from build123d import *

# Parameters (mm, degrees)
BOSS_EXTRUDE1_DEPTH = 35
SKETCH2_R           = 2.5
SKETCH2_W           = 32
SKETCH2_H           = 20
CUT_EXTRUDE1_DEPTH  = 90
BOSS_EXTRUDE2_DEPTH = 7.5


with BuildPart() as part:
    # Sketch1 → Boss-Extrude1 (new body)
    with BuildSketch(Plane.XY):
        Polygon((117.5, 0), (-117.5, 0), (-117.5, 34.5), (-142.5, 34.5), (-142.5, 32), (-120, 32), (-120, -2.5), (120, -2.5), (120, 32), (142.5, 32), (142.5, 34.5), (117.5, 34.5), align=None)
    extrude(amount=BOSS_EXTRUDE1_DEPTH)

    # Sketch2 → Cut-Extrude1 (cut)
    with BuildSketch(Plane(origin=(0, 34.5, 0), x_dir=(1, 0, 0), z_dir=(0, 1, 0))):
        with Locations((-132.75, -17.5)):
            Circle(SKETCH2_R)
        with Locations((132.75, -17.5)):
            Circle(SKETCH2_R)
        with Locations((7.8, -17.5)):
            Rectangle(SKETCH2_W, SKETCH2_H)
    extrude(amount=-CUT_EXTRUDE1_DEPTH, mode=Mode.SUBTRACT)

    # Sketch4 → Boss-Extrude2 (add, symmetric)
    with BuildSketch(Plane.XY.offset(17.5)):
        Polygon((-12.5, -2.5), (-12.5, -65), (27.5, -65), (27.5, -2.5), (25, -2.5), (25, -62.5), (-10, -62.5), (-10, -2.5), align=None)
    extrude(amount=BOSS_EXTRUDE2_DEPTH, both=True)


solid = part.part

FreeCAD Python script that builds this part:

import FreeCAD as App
import Part
import Sketcher
from FreeCAD import Vector
Q = App.Units.Quantity


def add_polygon(sketch, points):
    """Adds a closed chain of lines whose ends are joined by coincident constraints."""
    first, n = sketch.GeometryCount, len(points)
    for a, b in zip(points, points[1:] + points[:1]):
        sketch.addGeometry(Part.LineSegment(App.Vector(*a, 0), App.Vector(*b, 0)), False)
    for i in range(n):
        sketch.addConstraint(Sketcher.Constraint("Coincident", first + i, 2, first + (i + 1) % n, 1))

doc = App.newDocument("Part")
params = doc.addObject("Spreadsheet::Sheet", "Params")
for row, (alias, value) in enumerate([
    ("sketch1_width", "235 mm"),
    ("sketch1_width2", "25 mm"),
    ("sketch1_width3", "240 mm"),
    ("sketch1_height", "34.5 mm"),
    ("sketch1_height2", "2.5 mm"),
    ("pad1_length", "35 mm"),
    ("sketch2_diameter", "5 mm"),
    ("sketch2_width", "32 mm"),
    ("sketch2_height", "20 mm"),
    ("pocket1_length", "90 mm"),
    ("sketch3_width", "40 mm"),
    ("sketch3_width2", "35 mm"),
    ("sketch3_height", "60 mm"),
    ("sketch3_height2", "62.5 mm"),
    ("pad2_length", "15 mm"),
], start=1):
    params.set(f"A{row}", alias)
    params.set(f"B{row}", "=" + value)
    params.setAlias(f"B{row}", alias)

body = doc.addObject("PartDesign::Body", "Body")

sketch1 = body.newObject("Sketcher::SketchObject", "Sketch")
sketch1.AttachmentSupport = (doc.getObject("XY_Plane"), [""])
sketch1.MapMode = "FlatFace"
add_polygon(sketch1, [(117.5, 0), (-117.5, 0), (-117.5, 34.5), (-142.5, 34.5), (-142.5, 32), (-120, 32), (-120, -2.5), (120, -2.5), (120, 32), (142.5, 32), (142.5, 34.5), (117.5, 34.5)])
sketch1.addConstraint(Sketcher.Constraint("Horizontal", 0))
sketch1.addConstraint(Sketcher.Constraint("Vertical", 1))
sketch1.addConstraint(Sketcher.Constraint("Horizontal", 2))
sketch1.addConstraint(Sketcher.Constraint("Vertical", 3))
sketch1.addConstraint(Sketcher.Constraint("Horizontal", 4))
sketch1.addConstraint(Sketcher.Constraint("Vertical", 5))
sketch1.addConstraint(Sketcher.Constraint("Horizontal", 6))
sketch1.addConstraint(Sketcher.Constraint("Vertical", 7))
sketch1.addConstraint(Sketcher.Constraint("Horizontal", 8))
sketch1.addConstraint(Sketcher.Constraint("Vertical", 9))
sketch1.addConstraint(Sketcher.Constraint("Horizontal", 10))
sketch1.addConstraint(Sketcher.Constraint("Vertical", 11))
sketch1.addConstraint(Sketcher.Constraint("Symmetric", 0, 2, 11, 2, -1, 1))
sketch1.addConstraint(Sketcher.Constraint("Symmetric", 4, 2, 7, 2, -2))
sketch1.addConstraint(Sketcher.Constraint("Symmetric", 2, 2, 9, 2, -2))
sketch1.addConstraint(Sketcher.Constraint("Equal", 1, 5))
sketch1.addConstraint(Sketcher.Constraint("DistanceX", 0, 2, 0, 1, Q("235 mm")))
sketch1.addConstraint(Sketcher.Constraint("DistanceX", 2, 2, 2, 1, Q("25 mm")))
sketch1.addConstraint(Sketcher.Constraint("DistanceX", 6, 1, 6, 2, Q("240 mm")))
sketch1.addConstraint(Sketcher.Constraint("DistanceY", 1, 1, 1, 2, Q("34.5 mm")))
sketch1.addConstraint(Sketcher.Constraint("DistanceY", 3, 2, 3, 1, Q("2.5 mm")))
sketch1.setExpression("Constraints[28]", "Params.sketch1_width")
sketch1.setExpression("Constraints[29]", "Params.sketch1_width2")
sketch1.setExpression("Constraints[30]", "Params.sketch1_width3")
sketch1.setExpression("Constraints[31]", "Params.sketch1_height")
sketch1.setExpression("Constraints[32]", "Params.sketch1_height2")
pad1 = body.newObject("PartDesign::Pad", "Pad")
pad1.Profile = sketch1
pad1.setExpression("Length", "Params.pad1_length")

sketch2 = body.newObject("Sketcher::SketchObject", "Sketch001")
sketch2.AttachmentSupport = (doc.getObject("XZ_Plane"), [""])
sketch2.MapMode = "FlatFace"
sketch2.AttachmentOffset = App.Placement(Vector(0, 0, -34.5), App.Rotation())
sketch2.addGeometry(Part.Circle(Vector(-132.8, 17.5, 0), Vector(0, 0, 1), 2.5), False)
sketch2.addGeometry(Part.Circle(Vector(132.8, 17.5, 0), Vector(0, 0, 1), 2.5), False)
add_polygon(sketch2, [(-8.2, 7.5), (-8.2, 27.5), (23.8, 27.5), (23.8, 7.5)])
sketch2.addConstraint(Sketcher.Constraint("Vertical", 2))
sketch2.addConstraint(Sketcher.Constraint("Horizontal", 3))
sketch2.addConstraint(Sketcher.Constraint("Vertical", 4))
sketch2.addConstraint(Sketcher.Constraint("Horizontal", 5))
sketch2.addConstraint(Sketcher.Constraint("Equal", 0, 1))
sketch2.addConstraint(Sketcher.Constraint("Symmetric", 0, 3, 1, 3, -2))
sketch2.addConstraint(Sketcher.Constraint("Diameter", 0, Q("5 mm")))
sketch2.addConstraint(Sketcher.Constraint("DistanceX", 3, 1, 3, 2, Q("32 mm")))
sketch2.addConstraint(Sketcher.Constraint("DistanceY", 2, 1, 2, 2, Q("20 mm")))
sketch2.addConstraint(Sketcher.Constraint("DistanceY", 0, 3, 2, 2, Q("10 mm")))
sketch2.addConstraint(Sketcher.Constraint("DistanceY", -1, 1, 0, 3, Q("17.5 mm")))
sketch2.addConstraint(Sketcher.Constraint("DistanceX", 2, 2, -1, 1, Q("8.2 mm")))
sketch2.addConstraint(Sketcher.Constraint("DistanceX", 0, 3, 1, 3, Q("265.5 mm")))
sketch2.setExpression("Constraints[10]", "Params.sketch2_diameter")
sketch2.setExpression("Constraints[11]", "Params.sketch2_width")
sketch2.setExpression("Constraints[12]", "Params.sketch2_height")
pocket1 = body.newObject("PartDesign::Pocket", "Pocket")
pocket1.Profile = sketch2
pocket1.setExpression("Length", "Params.pocket1_length")
pocket1.Reversed = True

sketch3 = body.newObject("Sketcher::SketchObject", "Sketch002")
sketch3.AttachmentSupport = (doc.getObject("XY_Plane"), [""])
sketch3.MapMode = "FlatFace"
sketch3.AttachmentOffset = App.Placement(Vector(0, 0, 17.5), App.Rotation())
add_polygon(sketch3, [(-12.5, -2.5), (-12.5, -65), (27.5, -65), (27.5, -2.5), (25, -2.5), (25, -62.5), (-10, -62.5), (-10, -2.5)])
sketch3.addConstraint(Sketcher.Constraint("Vertical", 0))
sketch3.addConstraint(Sketcher.Constraint("Horizontal", 1))
sketch3.addConstraint(Sketcher.Constraint("Vertical", 2))
sketch3.addConstraint(Sketcher.Constraint("Horizontal", 3))
sketch3.addConstraint(Sketcher.Constraint("Vertical", 4))
sketch3.addConstraint(Sketcher.Constraint("Horizontal", 5))
sketch3.addConstraint(Sketcher.Constraint("Vertical", 6))
sketch3.addConstraint(Sketcher.Constraint("Horizontal", 7))
sketch3.addConstraint(Sketcher.Constraint("Horizontal", 3, 2, 6, 2))
sketch3.addConstraint(Sketcher.Constraint("Equal", 3, 7))
sketch3.addConstraint(Sketcher.Constraint("DistanceX", 1, 1, 1, 2, Q("40 mm")))
sketch3.addConstraint(Sketcher.Constraint("DistanceX", 5, 2, 5, 1, Q("35 mm")))
sketch3.addConstraint(Sketcher.Constraint("DistanceY", 4, 2, 4, 1, Q("60 mm")))
sketch3.addConstraint(Sketcher.Constraint("DistanceY", 0, 2, 0, 1, Q("62.5 mm")))
sketch3.addConstraint(Sketcher.Constraint("DistanceY", 0, 2, -1, 1, Q("65 mm")))
sketch3.addConstraint(Sketcher.Constraint("DistanceX", -1, 1, 3, 2, Q("25 mm")))
sketch3.setExpression("Constraints[18]", "Params.sketch3_width")
sketch3.setExpression("Constraints[19]", "Params.sketch3_width2")
sketch3.setExpression("Constraints[20]", "Params.sketch3_height")
sketch3.setExpression("Constraints[21]", "Params.sketch3_height2")
pad2 = body.newObject("PartDesign::Pad", "Pad001")
pad2.Profile = sketch3
pad2.setExpression("Length", "Params.pad2_length")
pad2.Midplane = True

doc.recompute()
